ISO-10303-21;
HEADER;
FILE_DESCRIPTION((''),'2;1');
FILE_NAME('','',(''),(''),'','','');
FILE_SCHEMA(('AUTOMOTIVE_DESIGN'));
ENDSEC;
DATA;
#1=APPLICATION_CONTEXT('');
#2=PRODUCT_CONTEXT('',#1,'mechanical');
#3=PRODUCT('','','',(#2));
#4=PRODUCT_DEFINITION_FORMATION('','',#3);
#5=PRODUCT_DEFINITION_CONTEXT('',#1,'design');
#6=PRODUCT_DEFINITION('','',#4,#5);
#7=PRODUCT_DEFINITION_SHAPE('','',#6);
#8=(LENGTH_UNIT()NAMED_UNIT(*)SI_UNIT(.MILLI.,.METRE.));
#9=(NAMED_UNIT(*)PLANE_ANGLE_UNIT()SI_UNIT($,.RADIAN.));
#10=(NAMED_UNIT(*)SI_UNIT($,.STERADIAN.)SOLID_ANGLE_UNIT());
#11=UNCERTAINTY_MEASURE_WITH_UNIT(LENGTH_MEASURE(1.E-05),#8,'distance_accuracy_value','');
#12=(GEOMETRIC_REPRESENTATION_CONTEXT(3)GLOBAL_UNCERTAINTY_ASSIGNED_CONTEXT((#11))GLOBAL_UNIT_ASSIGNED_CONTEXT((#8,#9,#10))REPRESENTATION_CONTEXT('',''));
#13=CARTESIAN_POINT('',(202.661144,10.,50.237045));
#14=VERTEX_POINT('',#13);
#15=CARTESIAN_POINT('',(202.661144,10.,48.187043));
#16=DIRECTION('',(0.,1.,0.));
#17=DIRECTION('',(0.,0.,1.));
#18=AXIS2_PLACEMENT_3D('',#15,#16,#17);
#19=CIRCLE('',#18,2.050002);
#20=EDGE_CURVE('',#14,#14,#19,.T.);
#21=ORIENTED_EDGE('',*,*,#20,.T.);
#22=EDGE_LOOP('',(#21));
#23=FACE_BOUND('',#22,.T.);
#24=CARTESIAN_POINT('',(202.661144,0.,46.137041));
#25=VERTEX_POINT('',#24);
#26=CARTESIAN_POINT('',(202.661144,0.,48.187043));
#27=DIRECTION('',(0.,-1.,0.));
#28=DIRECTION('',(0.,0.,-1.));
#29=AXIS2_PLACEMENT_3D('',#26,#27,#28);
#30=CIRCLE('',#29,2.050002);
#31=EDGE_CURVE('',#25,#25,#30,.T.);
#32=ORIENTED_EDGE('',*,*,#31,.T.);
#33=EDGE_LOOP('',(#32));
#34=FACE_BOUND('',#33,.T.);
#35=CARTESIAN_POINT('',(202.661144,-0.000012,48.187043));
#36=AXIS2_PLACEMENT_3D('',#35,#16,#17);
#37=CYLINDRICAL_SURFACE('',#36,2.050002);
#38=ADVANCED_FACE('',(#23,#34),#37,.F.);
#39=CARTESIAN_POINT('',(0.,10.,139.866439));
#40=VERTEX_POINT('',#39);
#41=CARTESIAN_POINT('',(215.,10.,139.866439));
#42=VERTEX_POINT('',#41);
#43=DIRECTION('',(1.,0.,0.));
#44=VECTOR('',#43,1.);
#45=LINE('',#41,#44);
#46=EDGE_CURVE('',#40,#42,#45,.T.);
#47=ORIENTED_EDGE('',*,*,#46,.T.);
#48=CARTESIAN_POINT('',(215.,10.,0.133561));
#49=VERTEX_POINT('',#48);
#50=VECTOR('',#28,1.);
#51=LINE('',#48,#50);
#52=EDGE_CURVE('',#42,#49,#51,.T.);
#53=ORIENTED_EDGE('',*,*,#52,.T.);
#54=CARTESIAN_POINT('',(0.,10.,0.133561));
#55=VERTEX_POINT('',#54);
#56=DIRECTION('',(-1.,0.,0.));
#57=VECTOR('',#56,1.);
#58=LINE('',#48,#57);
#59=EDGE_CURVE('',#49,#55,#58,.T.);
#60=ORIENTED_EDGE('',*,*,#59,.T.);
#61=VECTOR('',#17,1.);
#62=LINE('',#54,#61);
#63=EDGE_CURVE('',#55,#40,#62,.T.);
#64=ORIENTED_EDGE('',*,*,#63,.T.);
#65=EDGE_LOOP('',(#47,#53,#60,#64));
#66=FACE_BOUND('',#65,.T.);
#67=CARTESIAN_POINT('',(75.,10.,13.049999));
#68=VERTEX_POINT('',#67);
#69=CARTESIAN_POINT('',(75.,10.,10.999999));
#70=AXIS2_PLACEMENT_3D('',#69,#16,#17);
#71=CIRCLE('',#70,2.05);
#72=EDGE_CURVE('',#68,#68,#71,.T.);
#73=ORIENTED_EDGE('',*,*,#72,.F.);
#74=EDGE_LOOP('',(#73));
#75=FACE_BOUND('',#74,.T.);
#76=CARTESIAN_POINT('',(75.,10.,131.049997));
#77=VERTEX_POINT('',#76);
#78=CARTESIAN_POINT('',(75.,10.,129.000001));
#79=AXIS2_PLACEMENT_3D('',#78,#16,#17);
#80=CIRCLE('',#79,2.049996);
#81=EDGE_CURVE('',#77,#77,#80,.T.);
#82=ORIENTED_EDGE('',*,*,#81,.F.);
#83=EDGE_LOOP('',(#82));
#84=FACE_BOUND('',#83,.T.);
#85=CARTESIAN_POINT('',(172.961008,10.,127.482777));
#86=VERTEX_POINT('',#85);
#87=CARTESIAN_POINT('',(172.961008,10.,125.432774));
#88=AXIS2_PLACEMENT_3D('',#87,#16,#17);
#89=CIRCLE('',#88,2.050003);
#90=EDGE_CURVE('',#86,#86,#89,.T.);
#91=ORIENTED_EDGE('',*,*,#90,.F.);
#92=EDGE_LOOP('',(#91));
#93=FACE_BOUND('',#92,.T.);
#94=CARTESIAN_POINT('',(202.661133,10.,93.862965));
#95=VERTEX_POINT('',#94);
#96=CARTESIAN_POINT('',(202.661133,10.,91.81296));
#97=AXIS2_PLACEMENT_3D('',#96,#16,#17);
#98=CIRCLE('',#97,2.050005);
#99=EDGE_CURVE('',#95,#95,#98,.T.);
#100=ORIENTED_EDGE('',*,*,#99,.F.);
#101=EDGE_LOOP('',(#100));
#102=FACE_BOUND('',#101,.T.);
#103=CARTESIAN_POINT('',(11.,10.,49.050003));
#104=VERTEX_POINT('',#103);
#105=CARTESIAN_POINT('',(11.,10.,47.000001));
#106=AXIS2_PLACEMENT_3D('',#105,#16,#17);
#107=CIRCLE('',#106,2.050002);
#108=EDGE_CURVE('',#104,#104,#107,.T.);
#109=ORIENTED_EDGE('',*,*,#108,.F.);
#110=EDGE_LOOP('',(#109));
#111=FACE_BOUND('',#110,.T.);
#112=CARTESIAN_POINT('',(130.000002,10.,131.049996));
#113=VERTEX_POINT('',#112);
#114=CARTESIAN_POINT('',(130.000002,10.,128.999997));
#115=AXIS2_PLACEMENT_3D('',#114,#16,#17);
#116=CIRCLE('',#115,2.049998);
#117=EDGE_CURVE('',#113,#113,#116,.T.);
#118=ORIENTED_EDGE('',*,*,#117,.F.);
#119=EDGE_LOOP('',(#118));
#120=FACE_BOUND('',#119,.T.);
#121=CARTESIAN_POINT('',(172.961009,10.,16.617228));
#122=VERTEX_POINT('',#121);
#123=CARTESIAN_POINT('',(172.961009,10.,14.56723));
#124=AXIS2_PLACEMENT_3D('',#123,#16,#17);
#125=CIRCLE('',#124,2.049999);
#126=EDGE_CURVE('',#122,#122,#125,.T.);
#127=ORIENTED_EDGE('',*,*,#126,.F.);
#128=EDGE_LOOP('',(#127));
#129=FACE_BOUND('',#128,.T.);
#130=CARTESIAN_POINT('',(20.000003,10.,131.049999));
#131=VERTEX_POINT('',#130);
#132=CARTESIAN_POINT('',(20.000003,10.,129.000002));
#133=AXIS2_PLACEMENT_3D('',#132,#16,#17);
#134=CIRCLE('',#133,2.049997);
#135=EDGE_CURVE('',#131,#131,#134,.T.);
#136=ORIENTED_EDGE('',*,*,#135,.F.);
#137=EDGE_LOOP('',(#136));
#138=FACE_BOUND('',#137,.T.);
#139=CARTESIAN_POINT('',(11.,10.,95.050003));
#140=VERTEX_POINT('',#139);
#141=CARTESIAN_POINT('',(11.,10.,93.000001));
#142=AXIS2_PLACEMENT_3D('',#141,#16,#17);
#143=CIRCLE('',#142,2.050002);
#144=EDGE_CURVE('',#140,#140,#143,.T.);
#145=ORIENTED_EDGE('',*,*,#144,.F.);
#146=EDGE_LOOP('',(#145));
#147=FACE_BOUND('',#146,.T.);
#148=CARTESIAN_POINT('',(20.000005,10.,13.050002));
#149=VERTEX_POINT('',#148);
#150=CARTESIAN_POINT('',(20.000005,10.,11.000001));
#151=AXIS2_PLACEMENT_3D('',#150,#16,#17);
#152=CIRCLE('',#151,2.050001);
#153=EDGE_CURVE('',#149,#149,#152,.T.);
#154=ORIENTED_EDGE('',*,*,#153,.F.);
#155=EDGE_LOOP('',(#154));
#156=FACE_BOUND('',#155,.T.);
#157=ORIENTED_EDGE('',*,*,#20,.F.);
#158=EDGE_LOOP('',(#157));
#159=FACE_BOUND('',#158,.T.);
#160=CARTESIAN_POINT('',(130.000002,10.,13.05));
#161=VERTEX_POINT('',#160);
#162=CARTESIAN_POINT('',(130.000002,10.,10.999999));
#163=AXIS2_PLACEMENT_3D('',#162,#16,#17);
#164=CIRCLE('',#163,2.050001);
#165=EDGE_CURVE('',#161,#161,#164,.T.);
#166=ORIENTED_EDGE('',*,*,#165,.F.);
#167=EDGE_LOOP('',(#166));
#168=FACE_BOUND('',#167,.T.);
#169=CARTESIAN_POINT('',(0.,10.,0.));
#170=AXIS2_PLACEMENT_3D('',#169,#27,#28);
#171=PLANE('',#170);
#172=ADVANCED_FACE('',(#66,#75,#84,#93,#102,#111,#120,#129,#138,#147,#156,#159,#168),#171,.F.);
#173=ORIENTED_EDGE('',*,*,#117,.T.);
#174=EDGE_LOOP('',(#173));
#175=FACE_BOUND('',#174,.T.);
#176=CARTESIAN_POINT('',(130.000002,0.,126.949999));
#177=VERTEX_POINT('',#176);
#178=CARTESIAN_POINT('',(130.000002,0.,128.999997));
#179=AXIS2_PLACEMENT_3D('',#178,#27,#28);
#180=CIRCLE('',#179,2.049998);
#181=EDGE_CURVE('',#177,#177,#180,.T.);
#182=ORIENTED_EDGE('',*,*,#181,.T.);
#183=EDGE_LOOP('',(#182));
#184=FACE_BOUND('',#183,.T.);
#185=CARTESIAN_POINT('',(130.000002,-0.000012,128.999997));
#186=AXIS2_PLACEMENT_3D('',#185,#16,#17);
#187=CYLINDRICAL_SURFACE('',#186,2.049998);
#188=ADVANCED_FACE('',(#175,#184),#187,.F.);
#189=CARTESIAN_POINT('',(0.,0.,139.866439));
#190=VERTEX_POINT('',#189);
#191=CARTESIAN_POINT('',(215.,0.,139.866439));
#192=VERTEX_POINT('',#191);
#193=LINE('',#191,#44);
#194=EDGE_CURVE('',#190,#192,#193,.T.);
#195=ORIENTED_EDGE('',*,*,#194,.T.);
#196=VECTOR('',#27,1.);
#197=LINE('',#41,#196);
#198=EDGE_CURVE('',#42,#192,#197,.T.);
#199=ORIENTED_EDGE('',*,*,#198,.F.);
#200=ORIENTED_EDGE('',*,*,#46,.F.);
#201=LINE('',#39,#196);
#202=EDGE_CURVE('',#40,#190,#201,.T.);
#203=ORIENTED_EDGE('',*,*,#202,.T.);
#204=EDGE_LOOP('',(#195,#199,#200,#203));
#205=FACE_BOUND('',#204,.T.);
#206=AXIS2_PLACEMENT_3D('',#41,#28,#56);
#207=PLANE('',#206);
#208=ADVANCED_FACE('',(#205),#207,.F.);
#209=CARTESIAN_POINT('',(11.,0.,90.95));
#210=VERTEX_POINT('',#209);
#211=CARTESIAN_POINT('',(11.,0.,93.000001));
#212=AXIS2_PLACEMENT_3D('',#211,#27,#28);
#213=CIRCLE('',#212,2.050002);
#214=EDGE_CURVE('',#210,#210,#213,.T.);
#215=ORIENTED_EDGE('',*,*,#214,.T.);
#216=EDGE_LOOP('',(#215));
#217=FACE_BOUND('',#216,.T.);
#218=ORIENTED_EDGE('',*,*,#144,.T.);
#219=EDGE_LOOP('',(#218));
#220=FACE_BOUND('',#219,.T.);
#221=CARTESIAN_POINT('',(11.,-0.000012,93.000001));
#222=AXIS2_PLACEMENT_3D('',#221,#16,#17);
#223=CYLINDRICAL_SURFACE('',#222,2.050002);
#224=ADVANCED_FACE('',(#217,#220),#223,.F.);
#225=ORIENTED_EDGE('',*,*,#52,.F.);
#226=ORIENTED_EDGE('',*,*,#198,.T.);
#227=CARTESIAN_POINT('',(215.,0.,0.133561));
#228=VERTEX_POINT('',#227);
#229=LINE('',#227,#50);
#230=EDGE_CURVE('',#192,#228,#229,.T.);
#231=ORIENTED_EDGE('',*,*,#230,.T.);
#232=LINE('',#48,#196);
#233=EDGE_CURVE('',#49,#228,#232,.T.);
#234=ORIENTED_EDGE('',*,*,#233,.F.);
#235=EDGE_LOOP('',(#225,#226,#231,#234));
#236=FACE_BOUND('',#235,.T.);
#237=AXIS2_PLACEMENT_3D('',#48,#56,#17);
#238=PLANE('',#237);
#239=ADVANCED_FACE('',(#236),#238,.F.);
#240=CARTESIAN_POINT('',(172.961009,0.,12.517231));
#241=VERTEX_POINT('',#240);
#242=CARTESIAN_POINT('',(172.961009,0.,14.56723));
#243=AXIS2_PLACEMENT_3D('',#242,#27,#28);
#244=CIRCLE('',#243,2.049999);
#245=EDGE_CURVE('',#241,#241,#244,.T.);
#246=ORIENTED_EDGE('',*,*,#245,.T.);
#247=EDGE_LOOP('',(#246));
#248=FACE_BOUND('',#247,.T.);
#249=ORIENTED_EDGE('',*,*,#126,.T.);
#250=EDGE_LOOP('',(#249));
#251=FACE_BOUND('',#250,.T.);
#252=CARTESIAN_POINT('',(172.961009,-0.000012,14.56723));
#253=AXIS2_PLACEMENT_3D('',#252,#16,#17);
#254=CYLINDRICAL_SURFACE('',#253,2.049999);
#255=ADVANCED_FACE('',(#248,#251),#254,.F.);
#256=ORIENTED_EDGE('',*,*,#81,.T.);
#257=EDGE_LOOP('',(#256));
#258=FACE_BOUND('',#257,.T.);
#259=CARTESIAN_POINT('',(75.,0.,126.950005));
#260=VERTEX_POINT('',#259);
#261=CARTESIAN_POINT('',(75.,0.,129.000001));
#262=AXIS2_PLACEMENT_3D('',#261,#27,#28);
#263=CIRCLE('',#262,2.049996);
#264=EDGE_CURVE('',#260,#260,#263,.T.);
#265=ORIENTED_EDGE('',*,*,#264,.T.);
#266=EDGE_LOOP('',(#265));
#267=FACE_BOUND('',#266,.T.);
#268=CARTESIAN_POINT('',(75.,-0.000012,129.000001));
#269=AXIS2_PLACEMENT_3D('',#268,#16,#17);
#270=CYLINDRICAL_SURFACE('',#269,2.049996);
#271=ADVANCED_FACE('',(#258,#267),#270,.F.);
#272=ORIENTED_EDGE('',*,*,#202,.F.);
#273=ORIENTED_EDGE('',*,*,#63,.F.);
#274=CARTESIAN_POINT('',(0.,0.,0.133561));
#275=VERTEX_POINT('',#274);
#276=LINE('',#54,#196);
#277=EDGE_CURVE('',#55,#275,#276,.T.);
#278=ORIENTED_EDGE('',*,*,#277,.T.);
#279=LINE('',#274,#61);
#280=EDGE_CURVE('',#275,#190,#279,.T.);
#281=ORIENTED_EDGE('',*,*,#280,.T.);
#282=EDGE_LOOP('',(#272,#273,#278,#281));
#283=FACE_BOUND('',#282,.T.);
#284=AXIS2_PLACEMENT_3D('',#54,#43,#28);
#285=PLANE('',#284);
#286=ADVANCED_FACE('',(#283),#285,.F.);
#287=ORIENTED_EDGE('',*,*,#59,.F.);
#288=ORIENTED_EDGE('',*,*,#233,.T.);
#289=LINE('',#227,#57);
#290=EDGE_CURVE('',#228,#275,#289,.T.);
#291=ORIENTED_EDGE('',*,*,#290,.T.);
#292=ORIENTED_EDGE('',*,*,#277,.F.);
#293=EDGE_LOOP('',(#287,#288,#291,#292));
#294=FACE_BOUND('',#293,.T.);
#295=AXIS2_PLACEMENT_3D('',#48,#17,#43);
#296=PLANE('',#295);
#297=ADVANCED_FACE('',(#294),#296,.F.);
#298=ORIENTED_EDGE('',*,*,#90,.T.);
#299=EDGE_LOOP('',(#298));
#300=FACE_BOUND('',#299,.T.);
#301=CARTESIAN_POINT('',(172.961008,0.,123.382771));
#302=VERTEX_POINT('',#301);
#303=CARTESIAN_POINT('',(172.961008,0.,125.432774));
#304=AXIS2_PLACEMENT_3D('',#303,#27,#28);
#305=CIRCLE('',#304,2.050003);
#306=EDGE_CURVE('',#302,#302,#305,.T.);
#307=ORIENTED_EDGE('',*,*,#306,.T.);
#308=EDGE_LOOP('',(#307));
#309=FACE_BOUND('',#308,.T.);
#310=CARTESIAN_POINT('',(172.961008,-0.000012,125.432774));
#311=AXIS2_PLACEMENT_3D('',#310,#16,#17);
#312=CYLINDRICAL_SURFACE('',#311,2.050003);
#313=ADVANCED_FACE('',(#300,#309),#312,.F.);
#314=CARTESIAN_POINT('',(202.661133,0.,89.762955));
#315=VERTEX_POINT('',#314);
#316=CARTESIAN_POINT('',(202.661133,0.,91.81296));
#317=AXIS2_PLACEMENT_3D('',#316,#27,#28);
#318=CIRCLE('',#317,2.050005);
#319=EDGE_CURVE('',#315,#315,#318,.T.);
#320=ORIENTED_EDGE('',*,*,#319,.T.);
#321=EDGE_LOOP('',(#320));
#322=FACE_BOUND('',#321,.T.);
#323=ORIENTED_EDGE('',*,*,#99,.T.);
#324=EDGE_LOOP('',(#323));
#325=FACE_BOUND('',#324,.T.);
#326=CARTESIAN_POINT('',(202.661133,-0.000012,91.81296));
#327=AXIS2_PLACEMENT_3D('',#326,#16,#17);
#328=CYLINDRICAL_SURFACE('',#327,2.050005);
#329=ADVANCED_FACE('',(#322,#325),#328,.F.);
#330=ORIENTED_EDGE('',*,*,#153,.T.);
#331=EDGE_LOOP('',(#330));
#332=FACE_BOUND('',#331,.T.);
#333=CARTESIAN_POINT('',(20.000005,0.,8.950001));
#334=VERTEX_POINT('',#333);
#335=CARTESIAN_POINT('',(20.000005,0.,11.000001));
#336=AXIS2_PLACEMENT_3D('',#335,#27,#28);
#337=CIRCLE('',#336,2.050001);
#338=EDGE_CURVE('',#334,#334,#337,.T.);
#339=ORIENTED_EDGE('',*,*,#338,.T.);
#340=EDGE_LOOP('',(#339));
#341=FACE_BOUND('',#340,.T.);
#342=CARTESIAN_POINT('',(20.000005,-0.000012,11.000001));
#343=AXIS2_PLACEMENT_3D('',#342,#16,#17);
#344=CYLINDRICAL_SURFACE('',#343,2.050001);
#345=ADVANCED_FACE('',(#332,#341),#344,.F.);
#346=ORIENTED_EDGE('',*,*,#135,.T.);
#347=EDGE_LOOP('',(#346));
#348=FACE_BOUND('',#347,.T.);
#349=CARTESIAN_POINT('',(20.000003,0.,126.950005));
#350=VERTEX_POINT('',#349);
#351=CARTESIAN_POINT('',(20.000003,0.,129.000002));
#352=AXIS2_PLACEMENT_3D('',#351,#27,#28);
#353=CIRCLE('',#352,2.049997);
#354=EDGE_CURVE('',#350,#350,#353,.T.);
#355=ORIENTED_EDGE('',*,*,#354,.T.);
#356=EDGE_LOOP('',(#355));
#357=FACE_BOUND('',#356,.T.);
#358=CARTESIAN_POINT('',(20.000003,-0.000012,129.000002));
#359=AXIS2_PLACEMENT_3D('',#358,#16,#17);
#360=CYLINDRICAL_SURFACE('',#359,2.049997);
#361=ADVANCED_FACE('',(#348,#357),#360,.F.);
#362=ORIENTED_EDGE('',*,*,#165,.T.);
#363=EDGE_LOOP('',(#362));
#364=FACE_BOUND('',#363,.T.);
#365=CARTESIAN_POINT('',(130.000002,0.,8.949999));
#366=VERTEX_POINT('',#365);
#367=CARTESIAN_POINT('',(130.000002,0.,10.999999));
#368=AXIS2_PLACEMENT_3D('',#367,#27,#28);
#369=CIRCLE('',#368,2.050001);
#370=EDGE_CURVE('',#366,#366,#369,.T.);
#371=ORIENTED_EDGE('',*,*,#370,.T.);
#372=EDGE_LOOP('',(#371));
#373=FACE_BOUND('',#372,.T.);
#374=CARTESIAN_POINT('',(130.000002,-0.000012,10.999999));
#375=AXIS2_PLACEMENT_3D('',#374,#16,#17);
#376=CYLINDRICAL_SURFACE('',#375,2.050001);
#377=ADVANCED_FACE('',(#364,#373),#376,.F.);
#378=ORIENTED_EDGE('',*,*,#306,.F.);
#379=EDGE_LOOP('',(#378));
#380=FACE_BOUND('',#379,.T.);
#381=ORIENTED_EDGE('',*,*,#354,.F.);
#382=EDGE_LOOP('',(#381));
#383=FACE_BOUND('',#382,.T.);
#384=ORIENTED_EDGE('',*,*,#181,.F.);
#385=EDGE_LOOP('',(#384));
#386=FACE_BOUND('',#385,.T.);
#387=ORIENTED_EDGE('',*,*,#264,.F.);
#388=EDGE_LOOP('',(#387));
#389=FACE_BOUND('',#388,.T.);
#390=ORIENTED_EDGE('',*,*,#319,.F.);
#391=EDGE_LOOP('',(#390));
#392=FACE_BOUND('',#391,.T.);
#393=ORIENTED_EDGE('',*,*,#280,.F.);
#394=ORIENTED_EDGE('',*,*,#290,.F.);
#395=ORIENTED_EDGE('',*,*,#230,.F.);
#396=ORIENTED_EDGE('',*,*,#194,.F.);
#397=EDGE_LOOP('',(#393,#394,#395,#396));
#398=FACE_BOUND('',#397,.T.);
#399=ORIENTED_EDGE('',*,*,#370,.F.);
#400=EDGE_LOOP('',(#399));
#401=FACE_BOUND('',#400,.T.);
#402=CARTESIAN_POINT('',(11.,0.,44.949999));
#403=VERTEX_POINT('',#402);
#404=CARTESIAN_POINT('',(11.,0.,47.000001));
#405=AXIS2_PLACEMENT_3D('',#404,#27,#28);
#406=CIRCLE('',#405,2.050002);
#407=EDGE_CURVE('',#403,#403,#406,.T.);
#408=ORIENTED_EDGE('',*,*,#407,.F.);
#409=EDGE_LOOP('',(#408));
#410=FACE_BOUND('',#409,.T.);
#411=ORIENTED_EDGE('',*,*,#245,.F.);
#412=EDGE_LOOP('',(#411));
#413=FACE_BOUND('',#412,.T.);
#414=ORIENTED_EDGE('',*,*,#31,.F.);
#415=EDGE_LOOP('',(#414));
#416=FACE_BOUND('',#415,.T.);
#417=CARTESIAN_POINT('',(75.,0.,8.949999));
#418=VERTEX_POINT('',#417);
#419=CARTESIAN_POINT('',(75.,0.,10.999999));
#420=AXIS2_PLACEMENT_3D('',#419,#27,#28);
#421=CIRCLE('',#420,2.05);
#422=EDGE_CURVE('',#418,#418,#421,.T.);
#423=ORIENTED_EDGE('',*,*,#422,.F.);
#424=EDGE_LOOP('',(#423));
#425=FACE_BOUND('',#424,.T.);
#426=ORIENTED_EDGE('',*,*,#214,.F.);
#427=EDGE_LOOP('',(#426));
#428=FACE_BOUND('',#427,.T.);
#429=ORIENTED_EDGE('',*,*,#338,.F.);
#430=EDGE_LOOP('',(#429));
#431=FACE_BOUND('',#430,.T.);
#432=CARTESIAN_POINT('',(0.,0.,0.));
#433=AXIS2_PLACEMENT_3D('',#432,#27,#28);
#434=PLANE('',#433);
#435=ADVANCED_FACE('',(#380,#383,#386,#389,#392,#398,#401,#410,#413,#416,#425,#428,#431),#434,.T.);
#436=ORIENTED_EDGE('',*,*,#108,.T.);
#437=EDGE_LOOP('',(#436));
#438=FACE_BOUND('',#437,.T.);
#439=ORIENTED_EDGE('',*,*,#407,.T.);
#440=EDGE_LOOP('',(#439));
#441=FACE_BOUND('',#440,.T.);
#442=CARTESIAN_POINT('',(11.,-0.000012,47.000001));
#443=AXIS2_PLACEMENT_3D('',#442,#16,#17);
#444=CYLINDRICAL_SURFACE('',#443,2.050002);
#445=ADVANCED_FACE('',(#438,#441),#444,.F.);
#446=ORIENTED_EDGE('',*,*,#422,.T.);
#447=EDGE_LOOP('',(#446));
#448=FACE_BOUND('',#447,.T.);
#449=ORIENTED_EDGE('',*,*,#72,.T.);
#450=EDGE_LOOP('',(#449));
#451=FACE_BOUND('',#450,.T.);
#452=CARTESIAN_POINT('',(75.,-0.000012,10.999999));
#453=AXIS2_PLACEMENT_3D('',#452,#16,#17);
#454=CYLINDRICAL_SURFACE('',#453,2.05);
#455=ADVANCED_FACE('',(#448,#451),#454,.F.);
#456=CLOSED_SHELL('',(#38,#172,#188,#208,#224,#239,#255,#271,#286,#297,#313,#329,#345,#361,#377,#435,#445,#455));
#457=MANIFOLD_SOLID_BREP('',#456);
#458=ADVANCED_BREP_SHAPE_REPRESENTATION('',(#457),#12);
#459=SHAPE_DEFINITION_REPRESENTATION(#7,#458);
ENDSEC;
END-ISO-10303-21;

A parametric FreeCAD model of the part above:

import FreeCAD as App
import Part
import Sketcher
Q = App.Units.Quantity


def add_polygon(sketch, points):
    """Adds a closed chain of lines whose ends are joined by coincident constraints."""
    first, n = sketch.GeometryCount, len(points)
    for a, b in zip(points, points[1:] + points[:1]):
        sketch.addGeometry(Part.LineSegment(App.Vector(*a, 0), App.Vector(*b, 0)), False)
    for i in range(n):
        sketch.addConstraint(Sketcher.Constraint("Coincident", first + i, 2, first + (i + 1) % n, 1))

doc = App.newDocument("Part")
body = doc.addObject("PartDesign::Body", "Body")

sketch1 = doc.addObject("Sketcher::SketchObject", "Sketch")
body.addObject(sketch1)
sketch1.AttachmentSupport = (doc.XZ_Plane, [""])
sketch1.MapMode = "FlatFace"
add_polygon(sketch1, [(0, 0), (0, 140), (215, 140), (215, 0)])
sketch1.addConstraint([
    Sketcher.Constraint("Vertical", 0),
    Sketcher.Constraint("Horizontal", 1),
    Sketcher.Constraint("Vertical", 2),
    Sketcher.Constraint("Horizontal", 3),
    Sketcher.Constraint("PointOnObject", 0, 2, -2),
    Sketcher.Constraint("DistanceX", 1, 1, 1, 2, Q("215 mm")),
    Sketcher.Constraint("DistanceY", 0, 1, 0, 2, Q("139.732878 mm")),
    Sketcher.Constraint("DistanceY", -1, 1, 0, 2, Q("139.866439 mm")),
])
pad1 = doc.addObject("PartDesign::Pad", "Pad")
body.addObject(pad1)
pad1.Profile = sketch1
pad1.Length = 10
pad1.Reversed = True

sketch2 = doc.addObject("Sketcher::SketchObject", "Sketch001")
body.addObject(sketch2)
sketch2.AttachmentSupport = (doc.XZ_Plane, [""])
sketch2.MapMode = "FlatFace"
sketch2.addGeometry([
    Part.Circle(App.Vector(20, 129, 0), App.Vector(0, 0, 1), 2),
    Part.Circle(App.Vector(75, 129, 0), App.Vector(0, 0, 1), 2),
    Part.Circle(App.Vector(130, 129, 0), App.Vector(0, 0, 1), 2),
    Part.Circle(App.Vector(173, 125.4, 0), App.Vector(0, 0, 1), 2.1),
    Part.Circle(App.Vector(202.7, 91.8, 0), App.Vector(0, 0, 1), 2.1),
    Part.Circle(App.Vector(202.7, 48.2, 0), App.Vector(0, 0, 1), 2.1),
    Part.Circle(App.Vector(173, 14.6, 0), App.Vector(0, 0, 1), 2),
    Part.Circle(App.Vector(130, 11, 0), App.Vector(0, 0, 1), 2.1),
    Part.Circle(App.Vector(75, 11, 0), App.Vector(0, 0, 1), 2.1),
    Part.Circle(App.Vector(20, 11, 0), App.Vector(0, 0, 1), 2.1),
    Part.Circle(App.Vector(11, 47, 0), App.Vector(0, 0, 1), 2.1),
    Part.Circle(App.Vector(11, 93, 0), App.Vector(0, 0, 1), 2.1),
], False)
sketch2.addConstraint([
    Sketcher.Constraint("Equal", 0, 1),
    Sketcher.Constraint("Equal", 1, 2),
    Sketcher.Constraint("Equal", 3, 4),
    Sketcher.Constraint("Equal", 3, 5),
    Sketcher.Constraint("Equal", 2, 6),
    Sketcher.Constraint("Equal", 6, 7),
    Sketcher.Constraint("Equal", 7, 8),
    Sketcher.Constraint("Equal", 8, 9),
    Sketcher.Constraint("Equal", 9, 10),
    Sketcher.Constraint("Equal", 10, 11),
    Sketcher.Constraint("Horizontal", 0, 3, 1, 3),
    Sketcher.Constraint("Horizontal", 7, 3, 8, 3),
    Sketcher.Constraint("Horizontal", 7, 3, 9, 3),
    Sketcher.Constraint("Vertical", 3, 3, 6, 3),
    Sketcher.Constraint("Vertical", 2, 3, 7, 3),
    Sketcher.Constraint("Vertical", 1, 3, 8, 3),
    Sketcher.Constraint("Vertical", 0, 3, 9, 3),
    Sketcher.Constraint("Vertical", 10, 3, 11, 3),
    Sketcher.Constraint("Diameter", 7, Q("4.100001 mm")),
    Sketcher.Constraint("DistanceY", -1, 1, 0, 3, Q("129.000002 mm")),
    Sketcher.Constraint("DistanceX", -1, 1, 1, 3, Q("75 mm")),
    Sketcher.Constraint("DistanceX", -1, 1, 2, 3, Q("130.000002 mm")),
    Sketcher.Constraint("DistanceY", -1, 1, 7, 3, Q("10.999999 mm")),
    Sketcher.Constraint("DistanceX", -1, 1, 10, 3, Q("11 mm")),
    Sketcher.Constraint("DistanceY", -1, 1, 10, 3, Q("47.000001 mm")),
    Sketcher.Constraint("DistanceY", -1, 1, 11, 3, Q("93.000001 mm")),
    Sketcher.Constraint("DistanceX", 0, 3, 2, 3, Q("109.999999 mm")),
    Sketcher.Constraint("DistanceY", 7, 3, 2, 3, Q("117.999998 mm")),
    Sketcher.Constraint("Diameter", 4, Q("4.10001 mm")),
    Sketcher.Constraint("DistanceX", -1, 1, 3, 3, Q("172.961008 mm")),
    Sketcher.Constraint("DistanceY", -1, 1, 4, 3, Q("91.81296 mm")),
    Sketcher.Constraint("DistanceY", -1, 1, 6, 3, Q("14.56723 mm")),
    Sketcher.Constraint("DistanceX", 2, 3, 4, 3, Q("72.661131 mm")),
    Sketcher.Constraint("DistanceY", 5, 3, 3, 3, Q("77.245731 mm")),
    Sketcher.Constraint("DistanceX", 2, 3, 5, 3, Q("72.661142 mm")),
    Sketcher.Constraint("DistanceY", 5, 3, 1, 3, Q("80.812958 mm")),
])
pocket1 = doc.addObject("PartDesign::Pocket", "Pocket")
body.addObject(pocket1)
pocket1.Profile = sketch2
pocket1.Type = "ThroughAll"
pocket1.Midplane = True

doc.recompute()
